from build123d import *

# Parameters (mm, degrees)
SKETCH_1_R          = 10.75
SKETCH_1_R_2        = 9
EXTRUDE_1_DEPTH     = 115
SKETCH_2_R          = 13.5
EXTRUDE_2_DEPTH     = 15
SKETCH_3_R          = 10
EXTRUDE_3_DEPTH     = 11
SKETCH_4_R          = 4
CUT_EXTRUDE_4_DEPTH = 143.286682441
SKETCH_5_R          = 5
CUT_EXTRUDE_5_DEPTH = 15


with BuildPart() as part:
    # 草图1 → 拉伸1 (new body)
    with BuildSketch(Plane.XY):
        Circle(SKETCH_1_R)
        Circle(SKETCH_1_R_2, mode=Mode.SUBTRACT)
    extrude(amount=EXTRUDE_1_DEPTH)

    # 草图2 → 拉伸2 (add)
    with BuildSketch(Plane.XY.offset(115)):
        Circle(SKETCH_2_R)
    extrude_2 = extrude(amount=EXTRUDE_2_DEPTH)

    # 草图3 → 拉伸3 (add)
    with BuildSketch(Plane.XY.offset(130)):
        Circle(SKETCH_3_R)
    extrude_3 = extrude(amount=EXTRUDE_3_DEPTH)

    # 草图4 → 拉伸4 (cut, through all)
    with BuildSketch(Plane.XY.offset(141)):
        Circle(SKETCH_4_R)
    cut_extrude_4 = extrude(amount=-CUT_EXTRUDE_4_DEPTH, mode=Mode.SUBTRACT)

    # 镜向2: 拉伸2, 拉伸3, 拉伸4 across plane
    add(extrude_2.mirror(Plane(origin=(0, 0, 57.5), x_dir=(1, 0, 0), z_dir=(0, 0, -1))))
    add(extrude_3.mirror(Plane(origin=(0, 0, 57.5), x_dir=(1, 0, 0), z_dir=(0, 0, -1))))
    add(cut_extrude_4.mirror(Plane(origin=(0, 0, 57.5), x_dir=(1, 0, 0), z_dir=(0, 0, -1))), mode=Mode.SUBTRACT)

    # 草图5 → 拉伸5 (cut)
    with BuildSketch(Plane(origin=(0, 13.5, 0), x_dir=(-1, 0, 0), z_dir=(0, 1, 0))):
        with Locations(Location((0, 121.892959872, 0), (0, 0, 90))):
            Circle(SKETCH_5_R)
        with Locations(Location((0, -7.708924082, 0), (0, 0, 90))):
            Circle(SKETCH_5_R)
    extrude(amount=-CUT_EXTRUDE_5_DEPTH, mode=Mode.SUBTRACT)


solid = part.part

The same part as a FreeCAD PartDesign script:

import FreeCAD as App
import Part
import Sketcher
from FreeCAD import Vector

doc = App.newDocument("Part")
params = doc.addObject("Spreadsheet::Sheet", "Params")
for row, (alias, value) in enumerate([
    ("sketch1_diameter", "18 mm"),
    ("sketch1_diameter2", "21.5 mm"),
    ("pad1_length", "115 mm"),
    ("sketch2_diameter", "27 mm"),
    ("pad2_length", "15 mm"),
    ("sketch3_diameter", "20 mm"),
    ("pad3_length", "11 mm"),
    ("sketch4_diameter", "8 mm"),
    ("sketch5_diameter", "10 mm"),
    ("pocket2_length", "15 mm"),
], start=1):
    params.set(f"A{row}", alias)
    params.set(f"B{row}", "=" + value)
    params.setAlias(f"B{row}", alias)

body = doc.addObject("PartDesign::Body", "Body")

sketch1 = body.newObject("Sketcher::SketchObject", "Sketch")
sketch1.AttachmentSupport = (doc.getObject("XY_Plane"), [""])
sketch1.MapMode = "FlatFace"
sketch1.addGeometry(Part.Circle(Vector(0, 0, 0), Vector(0, 0, 1), 11), False)
sketch1.addGeometry(Part.Circle(Vector(0, 0, 0), Vector(0, 0, 1), 9), False)
sketch1.addConstraint(Sketcher.Constraint("Coincident", 0, 3, -1, 1))
sketch1.addConstraint(Sketcher.Constraint("Coincident", 1, 3, -1, 1))
sketch1.addConstraint(Sketcher.Constraint("Diameter", 1, 18.0))
sketch1.addConstraint(Sketcher.Constraint("Diameter", 0, 21.5))
sketch1.setExpression("Constraints[2]", "Params.sketch1_diameter")
sketch1.setExpression("Constraints[3]", "Params.sketch1_diameter2")
pad1 = body.newObject("PartDesign::Pad", "Pad")
pad1.Profile = sketch1
pad1.setExpression("Length", "Params.pad1_length")

sketch2 = body.newObject("Sketcher::SketchObject", "Sketch001")
sketch2.AttachmentSupport = (doc.getObject("XY_Plane"), [""])
sketch2.MapMode = "FlatFace"
sketch2.AttachmentOffset = App.Placement(Vector(0, 0, 115), App.Rotation())
sketch2.addGeometry(Part.Circle(Vector(0, 0, 0), Vector(0, 0, 1), 14), False)
sketch2.addConstraint(Sketcher.Constraint("Coincident", 0, 3, -1, 1))
sketch2.addConstraint(Sketcher.Constraint("Diameter", 0, 27.0))
sketch2.setExpression("Constraints[1]", "Params.sketch2_diameter")
pad2 = body.newObject("PartDesign::Pad", "Pad001")
pad2.Profile = sketch2
pad2.setExpression("Length", "Params.pad2_length")

sketch3 = body.newObject("Sketcher::SketchObject", "Sketch002")
sketch3.AttachmentSupport = (doc.getObject("XY_Plane"), [""])
sketch3.MapMode = "FlatFace"
sketch3.AttachmentOffset = App.Placement(Vector(0, 0, 130), App.Rotation())
sketch3.addGeometry(Part.Circle(Vector(0, 0, 0), Vector(0, 0, 1), 10), False)
sketch3.addConstraint(Sketcher.Constraint("Coincident", 0, 3, -1, 1))
sketch3.addConstraint(Sketcher.Constraint("Diameter", 0, 20.0))
sketch3.setExpression("Constraints[1]", "Params.sketch3_diameter")
pad3 = body.newObject("PartDesign::Pad", "Pad002")
pad3.Profile = sketch3
pad3.setExpression("Length", "Params.pad3_length")

sketch4 = body.newObject("Sketcher::SketchObject", "Sketch003")
sketch4.AttachmentSupport = (doc.getObject("XY_Plane"), [""])
sketch4.MapMode = "FlatFace"
sketch4.AttachmentOffset = App.Placement(Vector(0, 0, 141), App.Rotation())
sketch4.addGeometry(Part.Circle(Vector(0, 0, 0), Vector(0, 0, 1), 4), False)
sketch4.addConstraint(Sketcher.Constraint("Coincident", 0, 3, -1, 1))
sketch4.addConstraint(Sketcher.Constraint("Diameter", 0, 8.0))
sketch4.setExpression("Constraints[1]", "Params.sketch4_diameter")
pocket1 = body.newObject("PartDesign::Pocket", "Pocket")
pocket1.Profile = sketch4
pocket1.Type = "ThroughAll"
doc.recompute()

datumplane = body.newObject("PartDesign::Plane", "DatumPlane")
datumplane.AttachmentSupport = (doc.getObject("XY_Plane"), [""])
datumplane.MapMode = "FlatFace"
datumplane.AttachmentOffset = App.Placement(Vector(0, 0, 57.5), App.Rotation())
mirrored = body.newObject("PartDesign::Mirrored", "Mirrored")
mirrored.Originals = [pad2, pad3, pocket1]
mirrored.MirrorPlane = (datumplane, [""])
body.Tip = mirrored

sketch5 = body.newObject("Sketcher::SketchObject", "Sketch004")
sketch5.AttachmentSupport = (doc.getObject("XZ_Plane"), [""])
sketch5.MapMode = "FlatFace"
sketch5.AttachmentOffset = App.Placement(Vector(0, 0, -13.5), App.Rotation())
sketch5.addGeometry(Part.Circle(Vector(0, 122, 0), Vector(0, 0, 1), 5), False)
sketch5.addGeometry(Part.Circle(Vector(0, -8, 0), Vector(0, 0, 1), 5), False)
sketch5.addConstraint(Sketcher.Constraint("Equal", 0, 1))
sketch5.addConstraint(Sketcher.Constraint("PointOnObject", 0, 3, -2))
sketch5.addConstraint(Sketcher.Constraint("PointOnObject", 1, 3, -2))
sketch5.addConstraint(Sketcher.Constraint("Diameter", 0, 10.0))
sketch5.addConstraint(Sketcher.Constraint("DistanceY", -1, 1, 0, 3, 121.89296))
sketch5.addConstraint(Sketcher.Constraint("DistanceY", 1, 3, -1, 1, 7.708924))
sketch5.setExpression("Constraints[3]", "Params.sketch5_diameter")
pocket2 = body.newObject("PartDesign::Pocket", "Pocket001")
pocket2.Profile = sketch5
pocket2.setExpression("Length", "Params.pocket2_length")
pocket2.Reversed = True

doc.recompute()
